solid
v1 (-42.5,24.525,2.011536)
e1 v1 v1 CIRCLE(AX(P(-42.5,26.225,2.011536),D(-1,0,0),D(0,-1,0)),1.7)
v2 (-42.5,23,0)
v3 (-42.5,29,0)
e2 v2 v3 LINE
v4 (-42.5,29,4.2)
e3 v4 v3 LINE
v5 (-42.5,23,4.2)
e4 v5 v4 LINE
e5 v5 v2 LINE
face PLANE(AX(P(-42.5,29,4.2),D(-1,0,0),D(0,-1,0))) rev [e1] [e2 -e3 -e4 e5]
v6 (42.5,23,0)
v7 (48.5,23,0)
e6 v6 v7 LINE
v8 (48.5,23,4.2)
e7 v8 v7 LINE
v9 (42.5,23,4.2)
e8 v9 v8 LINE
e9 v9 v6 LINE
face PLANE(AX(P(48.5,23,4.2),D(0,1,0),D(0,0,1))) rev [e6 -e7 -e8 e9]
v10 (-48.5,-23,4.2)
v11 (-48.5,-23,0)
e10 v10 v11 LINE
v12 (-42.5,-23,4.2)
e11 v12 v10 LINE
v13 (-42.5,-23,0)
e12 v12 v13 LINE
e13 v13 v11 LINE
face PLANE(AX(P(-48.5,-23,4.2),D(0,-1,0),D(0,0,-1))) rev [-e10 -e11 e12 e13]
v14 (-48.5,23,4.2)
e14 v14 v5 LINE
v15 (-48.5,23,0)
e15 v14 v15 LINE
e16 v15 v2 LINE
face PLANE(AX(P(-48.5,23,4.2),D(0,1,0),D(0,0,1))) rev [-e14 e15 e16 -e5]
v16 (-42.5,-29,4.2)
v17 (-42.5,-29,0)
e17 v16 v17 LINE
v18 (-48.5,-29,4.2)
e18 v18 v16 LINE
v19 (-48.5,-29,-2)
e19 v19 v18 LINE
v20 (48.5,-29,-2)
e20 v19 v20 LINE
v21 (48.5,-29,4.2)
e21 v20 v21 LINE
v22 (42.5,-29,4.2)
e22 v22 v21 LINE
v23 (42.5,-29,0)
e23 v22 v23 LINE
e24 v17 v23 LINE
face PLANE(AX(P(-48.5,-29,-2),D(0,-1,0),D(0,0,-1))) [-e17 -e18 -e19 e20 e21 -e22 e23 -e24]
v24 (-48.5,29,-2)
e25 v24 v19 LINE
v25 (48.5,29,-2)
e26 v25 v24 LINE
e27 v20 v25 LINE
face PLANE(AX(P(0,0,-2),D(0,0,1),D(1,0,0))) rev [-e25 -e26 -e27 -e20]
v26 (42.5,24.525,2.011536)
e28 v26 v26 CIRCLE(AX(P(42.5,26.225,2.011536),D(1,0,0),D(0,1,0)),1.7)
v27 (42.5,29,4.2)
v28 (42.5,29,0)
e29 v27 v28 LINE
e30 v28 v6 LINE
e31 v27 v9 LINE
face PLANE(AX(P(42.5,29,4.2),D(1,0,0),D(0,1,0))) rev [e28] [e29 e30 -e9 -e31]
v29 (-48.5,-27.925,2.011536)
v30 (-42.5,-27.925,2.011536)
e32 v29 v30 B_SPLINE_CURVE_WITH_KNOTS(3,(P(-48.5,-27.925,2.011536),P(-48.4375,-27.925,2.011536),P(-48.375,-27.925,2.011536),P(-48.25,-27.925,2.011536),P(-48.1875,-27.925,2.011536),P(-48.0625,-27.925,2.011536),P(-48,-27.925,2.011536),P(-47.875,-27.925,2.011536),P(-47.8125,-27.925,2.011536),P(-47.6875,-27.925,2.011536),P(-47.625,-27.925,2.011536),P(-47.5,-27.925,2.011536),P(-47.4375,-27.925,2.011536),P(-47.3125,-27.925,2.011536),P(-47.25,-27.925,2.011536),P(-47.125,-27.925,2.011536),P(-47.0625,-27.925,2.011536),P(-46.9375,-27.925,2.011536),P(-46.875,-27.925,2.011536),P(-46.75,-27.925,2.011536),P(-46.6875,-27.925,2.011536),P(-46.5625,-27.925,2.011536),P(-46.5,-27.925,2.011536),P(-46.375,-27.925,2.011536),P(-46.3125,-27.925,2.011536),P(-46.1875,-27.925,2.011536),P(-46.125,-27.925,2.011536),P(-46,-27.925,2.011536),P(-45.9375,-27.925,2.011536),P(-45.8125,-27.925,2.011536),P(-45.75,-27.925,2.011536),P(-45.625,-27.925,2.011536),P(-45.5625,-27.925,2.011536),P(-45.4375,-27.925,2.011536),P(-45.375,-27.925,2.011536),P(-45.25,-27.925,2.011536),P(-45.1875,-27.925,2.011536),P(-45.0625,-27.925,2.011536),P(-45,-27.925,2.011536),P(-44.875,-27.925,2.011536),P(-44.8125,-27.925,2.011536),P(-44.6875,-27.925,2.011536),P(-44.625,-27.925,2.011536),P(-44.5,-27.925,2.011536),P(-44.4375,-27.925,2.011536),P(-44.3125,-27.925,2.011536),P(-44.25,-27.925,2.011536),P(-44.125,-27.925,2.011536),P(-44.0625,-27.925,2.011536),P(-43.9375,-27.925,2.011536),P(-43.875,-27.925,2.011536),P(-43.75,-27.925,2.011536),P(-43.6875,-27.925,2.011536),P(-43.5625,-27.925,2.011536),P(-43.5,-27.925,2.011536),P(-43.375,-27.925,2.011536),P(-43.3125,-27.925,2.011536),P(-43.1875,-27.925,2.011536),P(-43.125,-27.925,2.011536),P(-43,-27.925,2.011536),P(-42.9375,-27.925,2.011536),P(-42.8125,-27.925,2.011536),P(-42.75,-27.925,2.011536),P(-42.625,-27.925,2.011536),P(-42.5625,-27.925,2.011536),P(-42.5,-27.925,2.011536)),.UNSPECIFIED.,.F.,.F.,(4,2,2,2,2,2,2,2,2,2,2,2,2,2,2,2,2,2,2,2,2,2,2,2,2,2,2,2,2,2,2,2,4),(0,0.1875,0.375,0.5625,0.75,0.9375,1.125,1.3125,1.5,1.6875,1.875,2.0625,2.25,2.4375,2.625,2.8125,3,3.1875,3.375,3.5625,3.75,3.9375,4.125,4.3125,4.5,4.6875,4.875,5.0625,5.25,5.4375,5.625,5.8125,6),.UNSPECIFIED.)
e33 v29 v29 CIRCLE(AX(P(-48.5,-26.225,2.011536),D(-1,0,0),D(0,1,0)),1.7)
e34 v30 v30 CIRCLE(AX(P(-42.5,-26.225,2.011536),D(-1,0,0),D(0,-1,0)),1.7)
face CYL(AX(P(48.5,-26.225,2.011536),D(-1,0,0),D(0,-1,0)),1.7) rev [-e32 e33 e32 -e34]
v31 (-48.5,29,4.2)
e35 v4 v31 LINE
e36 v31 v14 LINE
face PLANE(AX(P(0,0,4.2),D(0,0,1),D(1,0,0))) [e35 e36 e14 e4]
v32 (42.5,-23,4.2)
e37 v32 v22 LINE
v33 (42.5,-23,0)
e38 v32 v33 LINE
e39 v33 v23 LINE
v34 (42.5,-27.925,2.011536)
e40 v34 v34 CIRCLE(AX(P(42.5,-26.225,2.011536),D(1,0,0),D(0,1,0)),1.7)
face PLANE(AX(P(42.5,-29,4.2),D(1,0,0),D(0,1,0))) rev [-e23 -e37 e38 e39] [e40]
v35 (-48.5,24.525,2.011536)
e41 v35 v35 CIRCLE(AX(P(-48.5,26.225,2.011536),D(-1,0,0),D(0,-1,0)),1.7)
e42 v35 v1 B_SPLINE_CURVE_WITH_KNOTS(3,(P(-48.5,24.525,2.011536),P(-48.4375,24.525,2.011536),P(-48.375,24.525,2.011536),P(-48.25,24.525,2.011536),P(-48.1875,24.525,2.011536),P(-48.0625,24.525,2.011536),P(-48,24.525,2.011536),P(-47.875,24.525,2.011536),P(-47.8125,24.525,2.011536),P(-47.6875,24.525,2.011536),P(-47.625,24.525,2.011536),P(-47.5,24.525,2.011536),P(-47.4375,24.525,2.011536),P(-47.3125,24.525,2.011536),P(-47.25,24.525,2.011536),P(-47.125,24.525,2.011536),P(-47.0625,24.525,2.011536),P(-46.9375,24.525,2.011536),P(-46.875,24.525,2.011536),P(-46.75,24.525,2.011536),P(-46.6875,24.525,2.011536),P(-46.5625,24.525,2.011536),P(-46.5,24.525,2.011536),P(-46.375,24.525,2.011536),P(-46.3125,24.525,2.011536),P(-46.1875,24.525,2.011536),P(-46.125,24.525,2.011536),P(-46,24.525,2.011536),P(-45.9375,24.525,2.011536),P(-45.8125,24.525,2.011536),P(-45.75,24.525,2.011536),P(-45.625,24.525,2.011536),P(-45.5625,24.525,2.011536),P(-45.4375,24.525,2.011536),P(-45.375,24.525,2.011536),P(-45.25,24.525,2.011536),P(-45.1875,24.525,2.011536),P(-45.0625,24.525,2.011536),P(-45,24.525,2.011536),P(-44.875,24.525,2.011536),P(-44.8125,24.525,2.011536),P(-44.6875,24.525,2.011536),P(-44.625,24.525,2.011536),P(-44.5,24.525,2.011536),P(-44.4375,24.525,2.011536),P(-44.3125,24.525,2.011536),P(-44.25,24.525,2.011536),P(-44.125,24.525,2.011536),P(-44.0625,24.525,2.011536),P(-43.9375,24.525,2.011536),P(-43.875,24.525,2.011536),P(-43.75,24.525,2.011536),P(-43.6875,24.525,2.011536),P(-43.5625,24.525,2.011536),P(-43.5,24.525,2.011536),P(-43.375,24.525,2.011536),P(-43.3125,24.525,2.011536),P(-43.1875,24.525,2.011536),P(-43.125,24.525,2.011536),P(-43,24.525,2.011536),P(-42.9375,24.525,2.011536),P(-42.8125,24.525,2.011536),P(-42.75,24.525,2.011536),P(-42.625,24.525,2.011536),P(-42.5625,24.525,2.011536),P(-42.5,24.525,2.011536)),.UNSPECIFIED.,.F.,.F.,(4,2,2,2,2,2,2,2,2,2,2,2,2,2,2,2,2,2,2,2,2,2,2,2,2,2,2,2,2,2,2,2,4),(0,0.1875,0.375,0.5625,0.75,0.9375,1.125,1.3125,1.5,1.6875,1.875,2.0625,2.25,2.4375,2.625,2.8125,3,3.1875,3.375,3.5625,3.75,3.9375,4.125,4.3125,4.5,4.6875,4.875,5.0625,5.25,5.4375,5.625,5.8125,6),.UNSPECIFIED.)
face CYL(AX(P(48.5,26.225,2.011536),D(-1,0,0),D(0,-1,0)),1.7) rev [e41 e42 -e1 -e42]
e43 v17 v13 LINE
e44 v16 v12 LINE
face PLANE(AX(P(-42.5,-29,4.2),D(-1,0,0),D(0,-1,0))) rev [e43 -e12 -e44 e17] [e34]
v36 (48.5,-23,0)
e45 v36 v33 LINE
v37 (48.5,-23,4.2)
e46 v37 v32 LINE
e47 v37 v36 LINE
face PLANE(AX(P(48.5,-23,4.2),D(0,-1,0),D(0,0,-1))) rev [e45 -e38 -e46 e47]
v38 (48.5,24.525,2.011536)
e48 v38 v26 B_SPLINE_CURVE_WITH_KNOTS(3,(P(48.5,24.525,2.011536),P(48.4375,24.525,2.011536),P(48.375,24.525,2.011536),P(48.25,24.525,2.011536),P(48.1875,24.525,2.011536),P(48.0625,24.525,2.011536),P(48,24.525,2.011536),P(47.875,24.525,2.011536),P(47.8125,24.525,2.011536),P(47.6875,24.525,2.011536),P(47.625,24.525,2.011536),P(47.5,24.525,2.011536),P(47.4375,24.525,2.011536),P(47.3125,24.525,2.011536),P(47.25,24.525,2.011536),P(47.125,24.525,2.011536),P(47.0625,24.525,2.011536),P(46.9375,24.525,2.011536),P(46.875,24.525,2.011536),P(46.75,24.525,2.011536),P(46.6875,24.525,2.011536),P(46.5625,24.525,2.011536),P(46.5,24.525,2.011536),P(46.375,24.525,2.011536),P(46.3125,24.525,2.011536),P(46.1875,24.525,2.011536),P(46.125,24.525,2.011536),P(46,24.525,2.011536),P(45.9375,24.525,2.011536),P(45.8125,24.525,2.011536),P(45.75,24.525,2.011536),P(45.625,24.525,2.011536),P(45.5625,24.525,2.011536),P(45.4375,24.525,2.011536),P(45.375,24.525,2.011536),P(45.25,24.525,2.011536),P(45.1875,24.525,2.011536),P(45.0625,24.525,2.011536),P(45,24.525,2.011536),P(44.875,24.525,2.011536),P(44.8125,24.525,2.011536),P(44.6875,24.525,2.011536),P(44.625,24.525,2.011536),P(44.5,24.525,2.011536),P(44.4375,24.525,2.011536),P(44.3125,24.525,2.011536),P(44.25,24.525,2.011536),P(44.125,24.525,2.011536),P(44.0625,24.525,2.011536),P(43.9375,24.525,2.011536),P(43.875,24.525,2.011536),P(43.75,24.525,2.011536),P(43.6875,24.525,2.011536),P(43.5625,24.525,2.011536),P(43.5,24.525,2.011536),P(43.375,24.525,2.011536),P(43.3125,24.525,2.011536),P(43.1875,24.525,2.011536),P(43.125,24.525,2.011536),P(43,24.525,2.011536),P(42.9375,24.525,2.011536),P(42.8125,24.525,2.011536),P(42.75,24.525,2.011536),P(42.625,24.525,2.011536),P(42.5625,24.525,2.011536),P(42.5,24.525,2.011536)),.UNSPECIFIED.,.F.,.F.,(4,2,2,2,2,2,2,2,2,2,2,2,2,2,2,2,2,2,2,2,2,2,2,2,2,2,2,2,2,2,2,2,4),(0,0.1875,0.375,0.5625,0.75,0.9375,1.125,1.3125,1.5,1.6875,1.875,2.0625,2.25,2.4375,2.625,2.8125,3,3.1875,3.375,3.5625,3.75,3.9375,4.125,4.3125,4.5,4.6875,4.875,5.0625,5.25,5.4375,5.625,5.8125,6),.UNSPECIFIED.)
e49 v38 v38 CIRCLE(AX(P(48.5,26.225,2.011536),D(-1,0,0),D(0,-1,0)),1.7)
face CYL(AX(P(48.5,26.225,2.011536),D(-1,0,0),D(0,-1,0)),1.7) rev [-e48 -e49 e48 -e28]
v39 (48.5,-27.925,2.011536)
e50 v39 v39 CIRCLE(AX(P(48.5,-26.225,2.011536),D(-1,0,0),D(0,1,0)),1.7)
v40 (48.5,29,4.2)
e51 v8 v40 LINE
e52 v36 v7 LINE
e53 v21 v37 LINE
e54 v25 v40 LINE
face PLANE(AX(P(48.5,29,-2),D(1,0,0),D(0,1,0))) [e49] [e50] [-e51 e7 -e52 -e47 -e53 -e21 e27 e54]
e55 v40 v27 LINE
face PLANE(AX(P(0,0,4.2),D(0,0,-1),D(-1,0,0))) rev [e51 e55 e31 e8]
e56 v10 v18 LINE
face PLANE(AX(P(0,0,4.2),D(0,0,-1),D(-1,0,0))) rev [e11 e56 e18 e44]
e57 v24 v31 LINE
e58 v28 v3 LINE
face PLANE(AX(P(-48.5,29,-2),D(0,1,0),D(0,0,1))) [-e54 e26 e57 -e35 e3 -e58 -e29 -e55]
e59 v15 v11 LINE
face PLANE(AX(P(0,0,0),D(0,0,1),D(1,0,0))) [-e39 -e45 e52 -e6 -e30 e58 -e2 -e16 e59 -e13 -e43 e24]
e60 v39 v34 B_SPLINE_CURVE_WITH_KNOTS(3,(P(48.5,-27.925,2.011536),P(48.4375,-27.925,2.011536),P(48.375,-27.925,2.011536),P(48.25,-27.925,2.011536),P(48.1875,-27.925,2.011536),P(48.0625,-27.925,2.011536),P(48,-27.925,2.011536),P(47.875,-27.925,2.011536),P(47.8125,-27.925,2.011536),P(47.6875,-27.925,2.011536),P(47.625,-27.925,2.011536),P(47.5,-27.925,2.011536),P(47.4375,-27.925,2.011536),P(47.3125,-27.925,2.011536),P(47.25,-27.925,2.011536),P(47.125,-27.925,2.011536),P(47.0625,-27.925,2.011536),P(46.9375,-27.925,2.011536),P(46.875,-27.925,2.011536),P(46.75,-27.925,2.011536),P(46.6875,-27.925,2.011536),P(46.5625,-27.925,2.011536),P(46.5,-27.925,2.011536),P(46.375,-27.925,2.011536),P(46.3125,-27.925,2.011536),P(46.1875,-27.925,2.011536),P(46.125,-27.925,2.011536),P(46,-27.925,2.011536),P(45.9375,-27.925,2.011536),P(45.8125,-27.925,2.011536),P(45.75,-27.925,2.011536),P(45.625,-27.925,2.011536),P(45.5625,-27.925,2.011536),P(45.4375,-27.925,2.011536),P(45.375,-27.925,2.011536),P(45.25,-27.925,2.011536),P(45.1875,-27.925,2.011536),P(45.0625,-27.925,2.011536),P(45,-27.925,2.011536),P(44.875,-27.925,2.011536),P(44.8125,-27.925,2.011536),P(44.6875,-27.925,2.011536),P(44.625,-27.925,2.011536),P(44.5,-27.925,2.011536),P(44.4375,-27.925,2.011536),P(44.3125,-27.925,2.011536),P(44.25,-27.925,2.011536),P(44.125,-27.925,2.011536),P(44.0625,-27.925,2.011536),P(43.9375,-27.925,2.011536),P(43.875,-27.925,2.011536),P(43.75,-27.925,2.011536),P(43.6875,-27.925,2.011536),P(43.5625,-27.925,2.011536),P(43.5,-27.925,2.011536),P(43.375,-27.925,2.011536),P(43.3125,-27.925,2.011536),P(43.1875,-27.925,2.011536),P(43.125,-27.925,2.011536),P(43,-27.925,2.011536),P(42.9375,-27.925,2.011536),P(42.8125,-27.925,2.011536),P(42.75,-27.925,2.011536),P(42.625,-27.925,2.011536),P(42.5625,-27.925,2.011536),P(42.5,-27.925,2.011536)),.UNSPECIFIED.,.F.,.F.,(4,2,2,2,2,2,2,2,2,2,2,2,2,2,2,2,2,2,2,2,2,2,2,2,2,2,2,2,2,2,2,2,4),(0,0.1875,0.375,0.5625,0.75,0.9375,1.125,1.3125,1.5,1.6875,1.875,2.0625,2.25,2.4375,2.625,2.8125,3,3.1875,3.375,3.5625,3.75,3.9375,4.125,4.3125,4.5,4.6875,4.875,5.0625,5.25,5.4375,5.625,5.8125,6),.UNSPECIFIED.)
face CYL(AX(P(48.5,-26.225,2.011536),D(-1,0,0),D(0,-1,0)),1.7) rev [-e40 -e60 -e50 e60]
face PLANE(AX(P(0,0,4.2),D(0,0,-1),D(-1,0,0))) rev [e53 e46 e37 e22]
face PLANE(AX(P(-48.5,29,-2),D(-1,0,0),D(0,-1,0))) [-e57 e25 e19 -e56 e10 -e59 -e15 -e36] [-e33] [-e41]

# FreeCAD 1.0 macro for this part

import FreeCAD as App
import Part
import Sketcher
from FreeCAD import Vector
Q = App.Units.Quantity


def add_polygon(sketch, points):
    """Adds a closed chain of lines whose ends are joined by coincident constraints."""
    first, n = sketch.GeometryCount, len(points)
    for a, b in zip(points, points[1:] + points[:1]):
        sketch.addGeometry(Part.LineSegment(App.Vector(*a, 0), App.Vector(*b, 0)), False)
    for i in range(n):
        sketch.addConstraint(Sketcher.Constraint("Coincident", first + i, 2, first + (i + 1) % n, 1))

doc = App.newDocument("Part")
body = doc.addObject("PartDesign::Body", "Body")

# Sketch on XY plane
sketch1 = body.newObject("Sketcher::SketchObject", "Sketch")
sketch1.AttachmentSupport = (doc.getObject("XY_Plane"), [""])
sketch1.MapMode = "FlatFace"
add_polygon(sketch1, [(-48, 29), (-48, -29), (48, -29), (48, 29)])  # lines 0-3
sketch1.addConstraint([
    Sketcher.Constraint("Vertical", 0),
    Sketcher.Constraint("Horizontal", 1),
    Sketcher.Constraint("Vertical", 2),
    Sketcher.Constraint("Horizontal", 3),
    Sketcher.Constraint("Symmetric", 0, 2, 2, 2, -1, 1),
    Sketcher.Constraint("DistanceX", 1, 1, 1, 2, Q("97 mm")),
    Sketcher.Constraint("DistanceY", 0, 2, 0, 1, Q("58 mm")),
])
pad1 = body.newObject("PartDesign::Pad", "Pad")
pad1.Profile = sketch1
pad1.Length = 2
pad1.Reversed = True

# Sketch on XY plane
sketch2 = body.newObject("Sketcher::SketchObject", "Sketch001")
sketch2.AttachmentSupport = (doc.getObject("XY_Plane"), [""])
sketch2.MapMode = "FlatFace"
add_polygon(sketch2, [(-48, 29), (-48, 23), (-42, 23), (-42, 29)])  # lines 0-3
add_polygon(sketch2, [(-48, -23), (-48, -29), (-42, -29), (-42, -23)])  # lines 4-7
add_polygon(sketch2, [(42, -23), (42, -29), (48, -29), (48, -23)])  # lines 8-11
add_polygon(sketch2, [(42, 29), (42, 23), (48, 23), (48, 29)])  # lines 12-15
sketch2.addConstraint([
    Sketcher.Constraint("Vertical", 0),
    Sketcher.Constraint("Horizontal", 1),
    Sketcher.Constraint("Vertical", 2),
    Sketcher.Constraint("Horizontal", 3),
    Sketcher.Constraint("Vertical", 4),
    Sketcher.Constraint("Horizontal", 5),
    Sketcher.Constraint("Vertical", 6),
    Sketcher.Constraint("Horizontal", 7),
    Sketcher.Constraint("Vertical", 8),
    Sketcher.Constraint("Horizontal", 9),
    Sketcher.Constraint("Vertical", 10),
    Sketcher.Constraint("Horizontal", 11),
    Sketcher.Constraint("Vertical", 12),
    Sketcher.Constraint("Horizontal", 13),
    Sketcher.Constraint("Vertical", 14),
    Sketcher.Constraint("Horizontal", 15),
    Sketcher.Constraint("Symmetric", 2, 2, 8, 2, -1, 1),
    Sketcher.Constraint("Symmetric", 0, 2, 10, 2, -1, 1),
    Sketcher.Constraint("Symmetric", 6, 2, 12, 2, -1, 1),
    Sketcher.Constraint("Symmetric", 4, 2, 14, 2, -1, 1),
    Sketcher.Constraint("Symmetric", 5, 2, 8, 2, -2),
    Sketcher.Constraint("Symmetric", 7, 2, 10, 2, -2),
    Sketcher.Constraint("Equal", 15, 0),
    Sketcher.Constraint("DistanceX", 1, 1, 1, 2, Q("6 mm")),
    Sketcher.Constraint("DistanceY", -1, 1, 0, 2, Q("23 mm")),
    Sketcher.Constraint("DistanceX", 5, 2, 8, 2, Q("85 mm")),
])
pad2 = body.newObject("PartDesign::Pad", "Pad001")
pad2.Profile = sketch2
pad2.Length = 4.2

# Sketch on YZ plane
sketch3 = body.newObject("Sketcher::SketchObject", "Sketch002")
sketch3.AttachmentSupport = (doc.getObject("YZ_Plane"), [""])
sketch3.MapMode = "FlatFace"
sketch3.AttachmentOffset = App.Placement(Vector(0, 0, -48.5), App.Rotation())
sketch3.addGeometry([
    Part.Circle(Vector(26.2, 2, 0), Vector(0, 0, 1), 1.7),
    Part.Circle(Vector(-26.2, 2, 0), Vector(0, 0, 1), 1.7),
], False)
sketch3.addConstraint([
    Sketcher.Constraint("Equal", 0, 1),
    Sketcher.Constraint("Symmetric", 0, 3, 1, 3, -2),
    Sketcher.Constraint("Diameter", 0, Q("3.4 mm")),
    Sketcher.Constraint("DistanceX", 1, 3, 0, 3, Q("52.45 mm")),
    Sketcher.Constraint("DistanceY", -1, 1, 0, 3, Q("2.011536 mm")),
])
pocket1 = body.newObject("PartDesign::Pocket", "Pocket")
pocket1.Profile = sketch3
pocket1.Type = "ThroughAll"
pocket1.Reversed = True

doc.recompute()
